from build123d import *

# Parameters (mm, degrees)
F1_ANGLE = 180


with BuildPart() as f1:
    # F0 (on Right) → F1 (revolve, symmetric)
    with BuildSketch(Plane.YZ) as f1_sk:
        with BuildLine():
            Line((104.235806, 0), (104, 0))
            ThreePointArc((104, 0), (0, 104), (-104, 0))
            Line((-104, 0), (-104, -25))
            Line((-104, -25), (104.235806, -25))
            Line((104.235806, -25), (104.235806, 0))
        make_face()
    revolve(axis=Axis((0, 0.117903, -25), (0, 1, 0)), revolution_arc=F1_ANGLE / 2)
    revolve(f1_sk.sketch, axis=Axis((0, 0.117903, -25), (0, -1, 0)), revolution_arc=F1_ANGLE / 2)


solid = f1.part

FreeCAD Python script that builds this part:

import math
import FreeCAD as App
import Part
import Sketcher

V = App.Vector
Q = App.Units.Quantity

doc = App.newDocument("Part")
body = doc.addObject("PartDesign::Body", "Body")

# Sketch on YZ plane
sketch1 = body.newObject("Sketcher::SketchObject", "Sketch")
sketch1.AttachmentSupport = (doc.getObject("YZ_Plane"), [""])
sketch1.MapMode = "FlatFace"
sketch1.addGeometry(Part.LineSegment(V(104.24, 0, 0), V(104, 0, 0)), False)
sketch1.addGeometry(Part.ArcOfCircle(Part.Circle(V(0, 0, 0), V(0, 0, 1), 104), math.radians(0), math.radians(180)), False)
sketch1.addGeometry(Part.LineSegment(V(-104, 0, 0), V(-104, -25, 0)), False)
sketch1.addGeometry(Part.LineSegment(V(-104, -25, 0), V(104.24, -25, 0)), False)
sketch1.addGeometry(Part.LineSegment(V(104.24, -25, 0), V(104.24, 0, 0)), False)
sketch1.addGeometry(Part.LineSegment(V(-104, -25, 0), V(104.24, -25, 0)), True)  # axis
sketch1.addConstraint(Sketcher.Constraint("Coincident", 0, 2, 1, 1))
sketch1.addConstraint(Sketcher.Constraint("Tangent", 1, 2, 2, 1))
sketch1.addConstraint(Sketcher.Constraint("Coincident", 2, 2, 3, 1))
sketch1.addConstraint(Sketcher.Constraint("Coincident", 3, 2, 4, 1))
sketch1.addConstraint(Sketcher.Constraint("Coincident", 4, 2, 0, 1))
sketch1.addConstraint(Sketcher.Constraint("Horizontal", 0))
sketch1.addConstraint(Sketcher.Constraint("Vertical", 2))
sketch1.addConstraint(Sketcher.Constraint("Horizontal", 3))
sketch1.addConstraint(Sketcher.Constraint("Vertical", 4))
sketch1.addConstraint(Sketcher.Constraint("Horizontal", 5))
sketch1.addConstraint(Sketcher.Constraint("Coincident", 1, 3, -1, 1))
sketch1.addConstraint(Sketcher.Constraint("Coincident", 5, 1, 2, 2))
sketch1.addConstraint(Sketcher.Constraint("PointOnObject", 0, 2, -1))
sketch1.addConstraint(Sketcher.Constraint("Vertical", 4, 2, 5, 2))
sketch1.addConstraint(Sketcher.Constraint("Radius", 1, Q("104 mm")))
sketch1.addConstraint(Sketcher.Constraint("DistanceY", 2, 2, 2, 1, Q("25 mm")))
sketch1.addConstraint(Sketcher.Constraint("DistanceX", 0, 2, 0, 1, Q("0.235806 mm")))
revolution = body.newObject("PartDesign::Revolution", "Revolution")
revolution.Profile = sketch1
revolution.ReferenceAxis = (sketch1, ["Axis0"])
revolution.Angle = 90

# Sketch on YZ plane
sketch2 = body.newObject("Sketcher::SketchObject", "Sketch001")
sketch2.AttachmentSupport = (doc.getObject("YZ_Plane"), [""])
sketch2.MapMode = "FlatFace"
sketch2.addGeometry(Part.LineSegment(V(104.24, 0, 0), V(104, 0, 0)), False)
sketch2.addGeometry(Part.ArcOfCircle(Part.Circle(V(0, 0, 0), V(0, 0, 1), 104), math.radians(0), math.radians(180)), False)
sketch2.addGeometry(Part.LineSegment(V(-104, 0, 0), V(-104, -25, 0)), False)
sketch2.addGeometry(Part.LineSegment(V(-104, -25, 0), V(104.24, -25, 0)), False)
sketch2.addGeometry(Part.LineSegment(V(104.24, -25, 0), V(104.24, 0, 0)), False)
sketch2.addGeometry(Part.LineSegment(V(104.24, -25, 0), V(-104, -25, 0)), True)  # axis
sketch2.addConstraint(Sketcher.Constraint("Coincident", 0, 2, 1, 1))
sketch2.addConstraint(Sketcher.Constraint("Tangent", 1, 2, 2, 1))
sketch2.addConstraint(Sketcher.Constraint("Coincident", 2, 2, 3, 1))
sketch2.addConstraint(Sketcher.Constraint("Coincident", 3, 2, 4, 1))
sketch2.addConstraint(Sketcher.Constraint("Coincident", 4, 2, 0, 1))
sketch2.addConstraint(Sketcher.Constraint("Horizontal", 0))
sketch2.addConstraint(Sketcher.Constraint("Vertical", 2))
sketch2.addConstraint(Sketcher.Constraint("Horizontal", 3))
sketch2.addConstraint(Sketcher.Constraint("Vertical", 4))
sketch2.addConstraint(Sketcher.Constraint("Horizontal", 5))
sketch2.addConstraint(Sketcher.Constraint("Coincident", 1, 3, -1, 1))
sketch2.addConstraint(Sketcher.Constraint("Coincident", 5, 1, 3, 2))
sketch2.addConstraint(Sketcher.Constraint("PointOnObject", 0, 2, -1))
sketch2.addConstraint(Sketcher.Constraint("Vertical", 1, 2, 5, 2))
sketch2.addConstraint(Sketcher.Constraint("Radius", 1, Q("104 mm")))
sketch2.addConstraint(Sketcher.Constraint("DistanceY", 2, 2, 2, 1, Q("25 mm")))
sketch2.addConstraint(Sketcher.Constraint("DistanceX", 0, 2, 0, 1, Q("0.235806 mm")))
revolution2 = body.newObject("PartDesign::Revolution", "Revolution001")
revolution2.Profile = sketch2
revolution2.ReferenceAxis = (sketch2, ["Axis0"])
revolution2.Angle = 90

doc.recompute()
